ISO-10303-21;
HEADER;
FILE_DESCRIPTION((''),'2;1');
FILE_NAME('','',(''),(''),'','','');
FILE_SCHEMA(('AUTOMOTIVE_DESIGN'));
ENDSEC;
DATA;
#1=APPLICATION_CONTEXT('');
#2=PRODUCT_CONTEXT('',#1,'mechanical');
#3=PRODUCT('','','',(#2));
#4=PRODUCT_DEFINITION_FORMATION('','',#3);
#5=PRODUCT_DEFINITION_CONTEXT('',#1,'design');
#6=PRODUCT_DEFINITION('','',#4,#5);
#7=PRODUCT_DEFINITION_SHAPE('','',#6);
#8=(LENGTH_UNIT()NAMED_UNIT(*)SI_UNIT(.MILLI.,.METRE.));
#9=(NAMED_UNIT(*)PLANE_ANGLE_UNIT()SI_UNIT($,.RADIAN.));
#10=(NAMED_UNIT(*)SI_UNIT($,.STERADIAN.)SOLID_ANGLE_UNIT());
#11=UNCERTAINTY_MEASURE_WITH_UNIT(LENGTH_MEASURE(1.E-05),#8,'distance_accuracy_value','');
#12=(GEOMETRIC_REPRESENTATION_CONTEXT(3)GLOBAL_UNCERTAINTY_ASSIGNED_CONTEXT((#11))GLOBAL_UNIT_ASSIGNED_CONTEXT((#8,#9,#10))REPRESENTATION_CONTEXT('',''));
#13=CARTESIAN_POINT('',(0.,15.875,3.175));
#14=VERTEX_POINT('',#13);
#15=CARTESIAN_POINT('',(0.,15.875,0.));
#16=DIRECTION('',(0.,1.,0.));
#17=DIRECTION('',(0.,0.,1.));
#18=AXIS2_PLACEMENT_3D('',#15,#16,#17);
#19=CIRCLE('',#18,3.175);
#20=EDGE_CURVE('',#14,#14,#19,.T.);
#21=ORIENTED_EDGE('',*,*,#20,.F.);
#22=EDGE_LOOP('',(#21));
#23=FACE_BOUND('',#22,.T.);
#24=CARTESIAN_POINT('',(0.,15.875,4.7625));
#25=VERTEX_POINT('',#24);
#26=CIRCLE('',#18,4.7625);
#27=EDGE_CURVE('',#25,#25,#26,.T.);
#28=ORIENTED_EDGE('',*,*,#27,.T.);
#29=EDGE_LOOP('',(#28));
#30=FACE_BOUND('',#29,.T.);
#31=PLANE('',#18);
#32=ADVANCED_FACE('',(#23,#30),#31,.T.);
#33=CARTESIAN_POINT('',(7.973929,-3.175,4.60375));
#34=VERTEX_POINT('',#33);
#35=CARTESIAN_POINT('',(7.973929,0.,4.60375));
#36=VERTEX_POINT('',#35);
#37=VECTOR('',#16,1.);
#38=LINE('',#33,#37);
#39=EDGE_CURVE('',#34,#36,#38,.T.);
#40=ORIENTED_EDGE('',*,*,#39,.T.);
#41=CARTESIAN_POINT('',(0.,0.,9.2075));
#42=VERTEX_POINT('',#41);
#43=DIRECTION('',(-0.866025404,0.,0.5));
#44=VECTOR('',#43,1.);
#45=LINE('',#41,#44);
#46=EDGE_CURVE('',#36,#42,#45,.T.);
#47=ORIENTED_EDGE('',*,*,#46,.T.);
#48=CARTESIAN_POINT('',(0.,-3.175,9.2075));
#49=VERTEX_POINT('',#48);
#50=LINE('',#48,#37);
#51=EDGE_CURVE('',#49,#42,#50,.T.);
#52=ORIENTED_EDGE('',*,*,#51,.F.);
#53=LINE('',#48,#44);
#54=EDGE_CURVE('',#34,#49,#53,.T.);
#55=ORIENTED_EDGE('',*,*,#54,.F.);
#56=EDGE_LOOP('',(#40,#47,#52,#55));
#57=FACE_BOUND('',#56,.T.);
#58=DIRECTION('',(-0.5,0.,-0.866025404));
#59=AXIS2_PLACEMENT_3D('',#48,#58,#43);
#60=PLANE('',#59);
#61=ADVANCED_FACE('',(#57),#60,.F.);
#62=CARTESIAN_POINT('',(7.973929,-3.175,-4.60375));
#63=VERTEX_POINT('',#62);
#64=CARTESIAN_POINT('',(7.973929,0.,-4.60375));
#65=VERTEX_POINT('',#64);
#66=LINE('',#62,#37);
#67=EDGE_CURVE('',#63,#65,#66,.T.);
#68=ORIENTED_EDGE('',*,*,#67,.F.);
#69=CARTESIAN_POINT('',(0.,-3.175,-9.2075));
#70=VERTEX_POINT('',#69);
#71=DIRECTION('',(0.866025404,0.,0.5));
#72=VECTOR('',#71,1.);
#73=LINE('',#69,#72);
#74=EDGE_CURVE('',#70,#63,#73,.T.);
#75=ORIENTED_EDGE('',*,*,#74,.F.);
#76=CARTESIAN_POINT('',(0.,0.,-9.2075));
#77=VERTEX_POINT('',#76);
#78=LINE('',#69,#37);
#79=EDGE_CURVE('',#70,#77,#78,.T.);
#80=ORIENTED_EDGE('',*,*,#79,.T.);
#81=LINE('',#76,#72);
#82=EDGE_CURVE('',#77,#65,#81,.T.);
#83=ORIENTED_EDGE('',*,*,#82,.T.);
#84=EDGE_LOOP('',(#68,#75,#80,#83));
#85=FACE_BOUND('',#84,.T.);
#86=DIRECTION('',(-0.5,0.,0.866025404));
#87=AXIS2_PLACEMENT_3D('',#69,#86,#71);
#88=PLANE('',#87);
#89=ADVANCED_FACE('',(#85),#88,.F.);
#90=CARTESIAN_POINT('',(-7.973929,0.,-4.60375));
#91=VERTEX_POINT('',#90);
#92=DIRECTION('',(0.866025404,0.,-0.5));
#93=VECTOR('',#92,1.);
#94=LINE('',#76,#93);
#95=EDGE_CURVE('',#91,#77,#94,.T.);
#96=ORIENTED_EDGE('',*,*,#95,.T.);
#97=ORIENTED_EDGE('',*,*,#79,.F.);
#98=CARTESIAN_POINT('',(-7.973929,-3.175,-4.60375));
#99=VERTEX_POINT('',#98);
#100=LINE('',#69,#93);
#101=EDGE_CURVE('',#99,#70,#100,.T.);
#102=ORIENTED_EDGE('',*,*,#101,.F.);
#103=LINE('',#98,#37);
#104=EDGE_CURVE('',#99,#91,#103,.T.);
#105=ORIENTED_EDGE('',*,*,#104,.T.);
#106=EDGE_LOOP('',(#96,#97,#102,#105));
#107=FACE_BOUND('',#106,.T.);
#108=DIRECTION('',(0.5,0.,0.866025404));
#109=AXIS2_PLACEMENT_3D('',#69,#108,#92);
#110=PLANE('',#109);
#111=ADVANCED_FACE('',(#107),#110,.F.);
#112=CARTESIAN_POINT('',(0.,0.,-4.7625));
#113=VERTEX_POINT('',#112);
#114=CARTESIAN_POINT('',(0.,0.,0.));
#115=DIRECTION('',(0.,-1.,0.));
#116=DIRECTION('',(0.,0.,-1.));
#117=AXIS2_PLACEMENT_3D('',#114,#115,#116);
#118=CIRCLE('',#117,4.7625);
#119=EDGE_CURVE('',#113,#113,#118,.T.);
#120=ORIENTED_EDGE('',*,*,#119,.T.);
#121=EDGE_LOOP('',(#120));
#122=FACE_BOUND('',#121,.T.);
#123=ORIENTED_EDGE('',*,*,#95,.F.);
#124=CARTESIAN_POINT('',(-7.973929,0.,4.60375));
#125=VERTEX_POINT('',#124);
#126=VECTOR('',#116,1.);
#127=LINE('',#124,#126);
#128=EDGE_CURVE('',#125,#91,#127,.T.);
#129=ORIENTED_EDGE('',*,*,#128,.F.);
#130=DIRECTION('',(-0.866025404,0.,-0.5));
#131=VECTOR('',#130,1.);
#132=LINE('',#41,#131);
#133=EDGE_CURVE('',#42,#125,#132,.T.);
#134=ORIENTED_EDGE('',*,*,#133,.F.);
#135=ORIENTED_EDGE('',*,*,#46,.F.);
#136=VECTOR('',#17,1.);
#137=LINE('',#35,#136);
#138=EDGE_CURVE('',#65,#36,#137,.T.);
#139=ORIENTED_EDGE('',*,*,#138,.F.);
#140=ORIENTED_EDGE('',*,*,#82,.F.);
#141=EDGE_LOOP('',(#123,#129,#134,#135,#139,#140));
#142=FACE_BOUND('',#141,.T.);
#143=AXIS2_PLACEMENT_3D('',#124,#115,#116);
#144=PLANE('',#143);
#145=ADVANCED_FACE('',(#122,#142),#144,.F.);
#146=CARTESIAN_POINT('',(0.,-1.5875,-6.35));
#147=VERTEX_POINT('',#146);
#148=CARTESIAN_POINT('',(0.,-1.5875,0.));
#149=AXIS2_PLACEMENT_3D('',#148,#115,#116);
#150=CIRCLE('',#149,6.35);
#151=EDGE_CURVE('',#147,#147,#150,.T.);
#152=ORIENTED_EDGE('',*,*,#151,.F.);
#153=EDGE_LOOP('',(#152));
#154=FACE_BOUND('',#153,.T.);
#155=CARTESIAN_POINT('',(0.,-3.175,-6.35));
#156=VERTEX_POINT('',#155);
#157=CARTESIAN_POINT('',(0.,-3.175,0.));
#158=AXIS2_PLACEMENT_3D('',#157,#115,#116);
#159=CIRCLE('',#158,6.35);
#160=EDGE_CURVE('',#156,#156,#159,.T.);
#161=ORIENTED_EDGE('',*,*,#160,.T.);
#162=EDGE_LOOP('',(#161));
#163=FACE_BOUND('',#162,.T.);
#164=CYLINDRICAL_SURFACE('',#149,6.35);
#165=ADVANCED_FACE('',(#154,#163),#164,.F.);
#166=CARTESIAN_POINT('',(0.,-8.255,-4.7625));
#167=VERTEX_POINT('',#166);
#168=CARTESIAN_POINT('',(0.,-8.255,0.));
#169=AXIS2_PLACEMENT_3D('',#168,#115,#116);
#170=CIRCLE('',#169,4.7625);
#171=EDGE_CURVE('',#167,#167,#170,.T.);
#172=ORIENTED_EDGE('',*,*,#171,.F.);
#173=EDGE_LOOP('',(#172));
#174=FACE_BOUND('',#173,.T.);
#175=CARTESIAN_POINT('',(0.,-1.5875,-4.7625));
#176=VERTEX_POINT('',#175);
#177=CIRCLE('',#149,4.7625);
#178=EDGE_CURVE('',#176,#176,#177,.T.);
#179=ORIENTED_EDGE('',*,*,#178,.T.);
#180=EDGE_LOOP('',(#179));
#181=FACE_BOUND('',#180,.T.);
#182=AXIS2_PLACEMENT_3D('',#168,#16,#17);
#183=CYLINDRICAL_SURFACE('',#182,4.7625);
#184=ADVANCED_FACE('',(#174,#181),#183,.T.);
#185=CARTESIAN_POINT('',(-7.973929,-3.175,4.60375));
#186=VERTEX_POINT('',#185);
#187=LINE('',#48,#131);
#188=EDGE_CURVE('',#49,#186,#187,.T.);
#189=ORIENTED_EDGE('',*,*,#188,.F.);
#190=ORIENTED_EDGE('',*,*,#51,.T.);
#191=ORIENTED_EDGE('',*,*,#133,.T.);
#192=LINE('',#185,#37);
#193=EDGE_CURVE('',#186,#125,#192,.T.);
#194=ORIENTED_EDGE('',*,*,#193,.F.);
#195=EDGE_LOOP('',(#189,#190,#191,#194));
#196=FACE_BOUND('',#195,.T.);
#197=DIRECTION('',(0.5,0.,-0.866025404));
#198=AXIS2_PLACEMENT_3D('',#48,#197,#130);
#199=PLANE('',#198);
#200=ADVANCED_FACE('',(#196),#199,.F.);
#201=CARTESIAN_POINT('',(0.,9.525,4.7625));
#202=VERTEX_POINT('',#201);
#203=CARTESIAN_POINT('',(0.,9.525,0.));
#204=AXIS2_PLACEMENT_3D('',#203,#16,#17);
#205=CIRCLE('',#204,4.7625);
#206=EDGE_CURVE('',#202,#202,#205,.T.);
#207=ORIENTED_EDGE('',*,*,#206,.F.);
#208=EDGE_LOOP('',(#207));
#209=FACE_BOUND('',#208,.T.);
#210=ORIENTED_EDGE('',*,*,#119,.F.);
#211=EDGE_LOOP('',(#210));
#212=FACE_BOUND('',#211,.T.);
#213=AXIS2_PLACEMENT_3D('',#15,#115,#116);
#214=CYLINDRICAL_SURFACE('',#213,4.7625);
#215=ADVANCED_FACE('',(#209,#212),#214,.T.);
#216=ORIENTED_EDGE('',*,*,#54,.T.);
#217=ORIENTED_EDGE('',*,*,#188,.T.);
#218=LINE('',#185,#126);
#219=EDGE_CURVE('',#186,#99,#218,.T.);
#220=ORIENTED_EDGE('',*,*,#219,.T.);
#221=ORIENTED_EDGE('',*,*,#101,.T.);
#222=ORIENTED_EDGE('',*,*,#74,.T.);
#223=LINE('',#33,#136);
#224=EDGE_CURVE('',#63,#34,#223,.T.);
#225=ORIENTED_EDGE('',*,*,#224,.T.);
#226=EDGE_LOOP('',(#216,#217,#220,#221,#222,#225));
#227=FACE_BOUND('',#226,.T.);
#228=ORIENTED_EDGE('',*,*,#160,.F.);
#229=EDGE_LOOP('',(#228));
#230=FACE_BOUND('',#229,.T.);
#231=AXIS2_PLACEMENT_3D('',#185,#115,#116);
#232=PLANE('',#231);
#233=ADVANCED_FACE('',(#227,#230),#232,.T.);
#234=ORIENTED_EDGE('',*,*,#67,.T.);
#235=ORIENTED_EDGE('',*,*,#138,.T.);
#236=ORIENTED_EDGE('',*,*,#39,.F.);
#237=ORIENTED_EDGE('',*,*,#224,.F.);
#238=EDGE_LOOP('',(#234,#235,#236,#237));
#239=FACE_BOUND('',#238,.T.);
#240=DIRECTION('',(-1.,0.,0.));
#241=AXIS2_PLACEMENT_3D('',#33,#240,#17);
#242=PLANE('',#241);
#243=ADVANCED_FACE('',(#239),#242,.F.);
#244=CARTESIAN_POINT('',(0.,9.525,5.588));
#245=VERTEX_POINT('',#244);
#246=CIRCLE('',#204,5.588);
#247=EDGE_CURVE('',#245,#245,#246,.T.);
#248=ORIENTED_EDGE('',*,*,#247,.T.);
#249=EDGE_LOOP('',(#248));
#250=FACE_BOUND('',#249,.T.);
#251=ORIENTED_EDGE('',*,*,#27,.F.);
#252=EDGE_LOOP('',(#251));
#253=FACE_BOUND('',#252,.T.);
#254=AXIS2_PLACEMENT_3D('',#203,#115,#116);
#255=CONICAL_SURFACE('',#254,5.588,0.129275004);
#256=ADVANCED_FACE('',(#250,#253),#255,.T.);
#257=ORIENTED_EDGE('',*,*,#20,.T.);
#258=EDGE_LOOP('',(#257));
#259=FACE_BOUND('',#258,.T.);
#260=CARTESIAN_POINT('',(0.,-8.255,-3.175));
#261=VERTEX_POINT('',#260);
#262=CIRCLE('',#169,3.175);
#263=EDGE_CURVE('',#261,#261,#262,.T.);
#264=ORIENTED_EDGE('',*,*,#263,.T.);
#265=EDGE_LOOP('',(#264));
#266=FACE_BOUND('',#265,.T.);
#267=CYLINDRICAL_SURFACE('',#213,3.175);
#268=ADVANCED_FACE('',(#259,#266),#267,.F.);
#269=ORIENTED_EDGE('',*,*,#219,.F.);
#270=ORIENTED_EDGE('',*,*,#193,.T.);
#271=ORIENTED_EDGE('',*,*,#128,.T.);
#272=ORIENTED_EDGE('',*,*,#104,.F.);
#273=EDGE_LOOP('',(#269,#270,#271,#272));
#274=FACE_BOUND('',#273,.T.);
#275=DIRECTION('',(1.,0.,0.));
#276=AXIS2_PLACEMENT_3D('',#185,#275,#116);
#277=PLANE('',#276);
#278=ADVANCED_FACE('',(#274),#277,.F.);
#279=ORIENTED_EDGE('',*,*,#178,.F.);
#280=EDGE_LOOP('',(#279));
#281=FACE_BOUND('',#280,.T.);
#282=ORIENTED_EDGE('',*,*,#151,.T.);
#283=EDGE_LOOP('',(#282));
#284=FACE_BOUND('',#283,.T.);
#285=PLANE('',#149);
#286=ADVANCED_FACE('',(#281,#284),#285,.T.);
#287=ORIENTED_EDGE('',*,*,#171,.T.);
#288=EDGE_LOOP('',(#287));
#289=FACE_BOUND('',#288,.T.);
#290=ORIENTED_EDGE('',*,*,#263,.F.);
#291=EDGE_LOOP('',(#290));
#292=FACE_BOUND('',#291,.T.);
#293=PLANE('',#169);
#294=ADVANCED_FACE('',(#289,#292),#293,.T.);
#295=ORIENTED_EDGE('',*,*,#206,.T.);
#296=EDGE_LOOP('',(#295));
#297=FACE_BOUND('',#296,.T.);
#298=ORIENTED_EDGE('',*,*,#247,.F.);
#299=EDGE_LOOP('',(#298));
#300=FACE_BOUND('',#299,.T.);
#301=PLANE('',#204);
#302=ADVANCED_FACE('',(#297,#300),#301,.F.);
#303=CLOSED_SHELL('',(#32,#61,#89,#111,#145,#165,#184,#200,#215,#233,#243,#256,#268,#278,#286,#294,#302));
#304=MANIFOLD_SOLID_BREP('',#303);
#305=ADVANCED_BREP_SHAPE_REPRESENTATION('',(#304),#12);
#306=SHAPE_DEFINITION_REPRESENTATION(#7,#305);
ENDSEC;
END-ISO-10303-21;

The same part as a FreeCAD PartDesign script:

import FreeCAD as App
import Part
import Sketcher
Q = App.Units.Quantity

doc = App.newDocument("Part")
body = doc.addObject("PartDesign::Body", "Body")

# Sketch on XZ plane
sketch1 = body.newObject("Sketcher::SketchObject", "Sketch")
sketch1.AttachmentSupport = (doc.getObject("XZ_Plane"), [""])
sketch1.MapMode = "FlatFace"
sketch1.addGeometry(Part.Circle(App.Vector(0, 0, 0), App.Vector(0, 0, 1), 4.8), False)
sketch1.addGeometry(Part.Circle(App.Vector(0, 0, 0), App.Vector(0, 0, 1), 3.2), False)
sketch1.addConstraint(Sketcher.Constraint("Coincident", 0, 3, -1, 1))
sketch1.addConstraint(Sketcher.Constraint("Coincident", 1, 3, -1, 1))
sketch1.addConstraint(Sketcher.Constraint("Diameter", 1, Q("0.25 in")))
sketch1.addConstraint(Sketcher.Constraint("Diameter", 0, Q("0.375 in")))
pad1 = body.newObject("PartDesign::Pad", "Pad")
pad1.Profile = sketch1
pad1.Length = Q("0.625 in")
pad1.Reversed = True

# Sketch on XZ plane
sketch2 = body.newObject("Sketcher::SketchObject", "Sketch001")
sketch2.AttachmentSupport = (doc.getObject("XZ_Plane"), [""])
sketch2.MapMode = "FlatFace"
sketch2.addGeometry(Part.LineSegment(App.Vector(8, -4.6, 0), App.Vector(8, 4.6, 0)), False)
sketch2.addGeometry(Part.LineSegment(App.Vector(8, 4.6, 0), App.Vector(0, 9.2, 0)), False)
sketch2.addGeometry(Part.LineSegment(App.Vector(0, 9.2, 0), App.Vector(-8, 4.6, 0)), False)
sketch2.addGeometry(Part.LineSegment(App.Vector(-8, 4.6, 0), App.Vector(-8, -4.6, 0)), False)
sketch2.addGeometry(Part.LineSegment(App.Vector(-8, -4.6, 0), App.Vector(0, -9.2, 0)), False)
sketch2.addGeometry(Part.LineSegment(App.Vector(0, -9.2, 0), App.Vector(8, -4.6, 0)), False)
sketch2.addGeometry(Part.Circle(App.Vector(0, 0, 0), App.Vector(0, 0, 1), 3.2), False)
sketch2.addConstraint(Sketcher.Constraint("Coincident", 0, 2, 1, 1))
sketch2.addConstraint(Sketcher.Constraint("Coincident", 1, 2, 2, 1))
sketch2.addConstraint(Sketcher.Constraint("Coincident", 2, 2, 3, 1))
sketch2.addConstraint(Sketcher.Constraint("Coincident", 3, 2, 4, 1))
sketch2.addConstraint(Sketcher.Constraint("Coincident", 4, 2, 5, 1))
sketch2.addConstraint(Sketcher.Constraint("Coincident", 5, 2, 0, 1))
sketch2.addConstraint(Sketcher.Constraint("Vertical", 0))
sketch2.addConstraint(Sketcher.Constraint("Vertical", 3))
sketch2.addConstraint(Sketcher.Constraint("Coincident", 6, 3, -1, 1))
sketch2.addConstraint(Sketcher.Constraint("Symmetric", 0, 2, 3, 2, -1, 1))
sketch2.addConstraint(Sketcher.Constraint("Symmetric", 1, 2, 4, 2, -1, 1))
sketch2.addConstraint(Sketcher.Constraint("PointOnObject", 1, 2, -2))
sketch2.addConstraint(Sketcher.Constraint("Parallel", 2, 5))
sketch2.addConstraint(Sketcher.Constraint("Horizontal", 0, 2, 2, 2))
sketch2.addConstraint(Sketcher.Constraint("Diameter", 6, Q("0.25 in")))
sketch2.addConstraint(Sketcher.Constraint("Angle", 1, Q("150 deg")))
sketch2.addConstraint(Sketcher.Constraint("DistanceY", 0, 1, 0, 2, Q("0.3625 in")))
sketch2.addConstraint(Sketcher.Constraint("DistanceY", 4, 2, 1, 2, Q("0.725 in")))
pad2 = body.newObject("PartDesign::Pad", "Pad001")
pad2.Profile = sketch2
pad2.Length = Q("0.125 in")

# Sketch on XZ plane
sketch3 = body.newObject("Sketcher::SketchObject", "Sketch002")
sketch3.AttachmentSupport = (doc.getObject("XZ_Plane"), [""])
sketch3.MapMode = "FlatFace"
sketch3.AttachmentOffset = App.Placement(App.Vector(0, 0, 0.125 * 25.4), App.Rotation())
sketch3.addGeometry(Part.Circle(App.Vector(0, 0, 0), App.Vector(0, 0, 1), 4.8), False)
sketch3.addGeometry(Part.Circle(App.Vector(0, 0, 0), App.Vector(0, 0, 1), 3.2), False)
sketch3.addConstraint(Sketcher.Constraint("Coincident", 0, 3, -1, 1))
sketch3.addConstraint(Sketcher.Constraint("Coincident", 1, 3, -1, 1))
sketch3.addConstraint(Sketcher.Constraint("Diameter", 1, Q("0.25 in")))
sketch3.addConstraint(Sketcher.Constraint("Diameter", 0, Q("0.375 in")))
pad3 = body.newObject("PartDesign::Pad", "Pad002")
pad3.Profile = sketch3
pad3.Length = Q("0.2 in")

# Sketch on XZ plane
sketch4 = body.newObject("Sketcher::SketchObject", "Sketch003")
sketch4.AttachmentSupport = (doc.getObject("XZ_Plane"), [""])
sketch4.MapMode = "FlatFace"
sketch4.AttachmentOffset = App.Placement(App.Vector(0, 0, 0.125 * 25.4), App.Rotation())
sketch4.addGeometry(Part.Circle(App.Vector(0, 0, 0), App.Vector(0, 0, 1), 6.3), False)
sketch4.addGeometry(Part.Circle(App.Vector(0, 0, 0), App.Vector(0, 0, 1), 4.8), False)
sketch4.addConstraint(Sketcher.Constraint("Coincident", 0, 3, -1, 1))
sketch4.addConstraint(Sketcher.Constraint("Coincident", 1, 3, -1, 1))
sketch4.addConstraint(Sketcher.Constraint("Diameter", 0, Q("0.5 in")))
sketch4.addConstraint(Sketcher.Constraint("Diameter", 1, Q("0.375 in")))
pocket1 = body.newObject("PartDesign::Pocket", "Pocket")
pocket1.Profile = sketch4
pocket1.Length = Q("0.0625 in")

# Sketch on XZ plane
sketch5 = body.newObject("Sketcher::SketchObject", "Sketch004")
sketch5.AttachmentSupport = (doc.getObject("XZ_Plane"), [""])
sketch5.MapMode = "FlatFace"
sketch5.AttachmentOffset = App.Placement(App.Vector(0, 0, -0.625 * 25.4), App.Rotation())
sketch5.addGeometry(Part.Circle(App.Vector(0, 0, 0), App.Vector(0, 0, 1), 5.6), False)
sketch5.addGeometry(Part.Circle(App.Vector(0, 0, 0), App.Vector(0, 0, 1), 4.8), False)
sketch5.addConstraint(Sketcher.Constraint("Coincident", 0, 3, -1, 1))
sketch5.addConstraint(Sketcher.Constraint("Coincident", 1, 3, -1, 1))
sketch5.addConstraint(Sketcher.Constraint("Diameter", 0, Q("0.44 in")))
sketch5.addConstraint(Sketcher.Constraint("Diameter", 1, Q("0.375 in")))
pad4 = body.newObject("PartDesign::Pad", "Pad003")
pad4.Profile = sketch5
pad4.Length = Q("0.25 in")

# Sketch on YZ plane
sketch6 = body.newObject("Sketcher::SketchObject", "Sketch005")
sketch6.AttachmentSupport = (doc.getObject("YZ_Plane"), [""])
sketch6.MapMode = "FlatFace"
sketch6.addGeometry(Part.LineSegment(App.Vector(9.5, 5.6, 0), App.Vector(15.9, 4.8, 0)), False)
sketch6.addGeometry(Part.LineSegment(App.Vector(15.9, 4.8, 0), App.Vector(15.9, 5.6, 0)), False)
sketch6.addGeometry(Part.LineSegment(App.Vector(15.9, 5.6, 0), App.Vector(9.5, 5.6, 0)), False)
sketch6.addConstraint(Sketcher.Constraint("Coincident", 0, 2, 1, 1))
sketch6.addConstraint(Sketcher.Constraint("Coincident", 1, 2, 2, 1))
sketch6.addConstraint(Sketcher.Constraint("Coincident", 2, 2, 0, 1))
sketch6.addConstraint(Sketcher.Constraint("Vertical", 1))
sketch6.addConstraint(Sketcher.Constraint("Horizontal", 2))
sketch6.addConstraint(Sketcher.Constraint("DistanceX", 2, 2, 2, 1, Q("0.25 in")))
sketch6.addConstraint(Sketcher.Constraint("DistanceY", -1, 1, 1, 2, Q("0.22 in")))
sketch6.addConstraint(Sketcher.Constraint("DistanceY", 1, 1, 1, 2, Q("0.0325 in")))
sketch6.addConstraint(Sketcher.Constraint("DistanceX", -1, 1, 0, 2, Q("0.625 in")))
groove = body.newObject("PartDesign::Groove", "Groove")
groove.Profile = sketch6
groove.ReferenceAxis = (sketch6, ["H_Axis"])
groove.Angle = 360

doc.recompute()
